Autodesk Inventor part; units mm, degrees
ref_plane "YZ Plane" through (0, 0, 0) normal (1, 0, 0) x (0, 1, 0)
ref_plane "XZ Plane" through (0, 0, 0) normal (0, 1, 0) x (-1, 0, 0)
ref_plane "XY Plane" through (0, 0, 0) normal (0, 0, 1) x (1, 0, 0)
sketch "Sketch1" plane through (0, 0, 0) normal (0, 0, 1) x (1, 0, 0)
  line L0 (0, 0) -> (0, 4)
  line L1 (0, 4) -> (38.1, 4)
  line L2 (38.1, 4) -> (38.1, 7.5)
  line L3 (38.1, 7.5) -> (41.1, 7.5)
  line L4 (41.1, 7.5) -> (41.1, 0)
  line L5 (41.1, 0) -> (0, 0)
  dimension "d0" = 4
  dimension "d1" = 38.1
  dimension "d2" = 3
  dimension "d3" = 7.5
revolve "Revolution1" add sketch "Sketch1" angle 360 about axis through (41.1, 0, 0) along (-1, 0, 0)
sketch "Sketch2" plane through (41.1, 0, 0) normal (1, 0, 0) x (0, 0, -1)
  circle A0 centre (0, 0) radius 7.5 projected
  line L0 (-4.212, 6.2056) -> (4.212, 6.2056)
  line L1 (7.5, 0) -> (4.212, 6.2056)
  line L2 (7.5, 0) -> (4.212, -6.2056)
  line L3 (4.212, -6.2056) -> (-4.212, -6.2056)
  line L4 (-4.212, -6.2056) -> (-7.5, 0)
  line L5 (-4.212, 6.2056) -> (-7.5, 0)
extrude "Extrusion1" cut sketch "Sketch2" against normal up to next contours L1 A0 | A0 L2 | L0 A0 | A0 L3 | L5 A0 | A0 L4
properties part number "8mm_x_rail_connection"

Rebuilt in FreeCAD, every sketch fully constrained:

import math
import FreeCAD as App
import Part
import Sketcher

doc = App.newDocument("Part")
body = doc.addObject("PartDesign::Body", "Body")

sketch1 = body.newObject("Sketcher::SketchObject", "Sketch")
sketch1.AttachmentSupport = (doc.getObject("XY_Plane"), [""])
sketch1.MapMode = "FlatFace"
sketch1.addGeometry(Part.LineSegment(App.Vector(0, 4, 0), App.Vector(0, 0, 0)), False)
sketch1.addGeometry(Part.LineSegment(App.Vector(0, 0, 0), App.Vector(41.1, 0, 0)), False)
sketch1.addGeometry(Part.LineSegment(App.Vector(41.1, 0, 0), App.Vector(41.1, 7.5, 0)), False)
sketch1.addGeometry(Part.LineSegment(App.Vector(41.1, 7.5, 0), App.Vector(38.1, 7.5, 0)), False)
sketch1.addGeometry(Part.LineSegment(App.Vector(38.1, 7.5, 0), App.Vector(38.1, 4, 0)), False)
sketch1.addGeometry(Part.LineSegment(App.Vector(38.1, 4, 0), App.Vector(0, 4, 0)), False)
sketch1.addConstraint(Sketcher.Constraint("Coincident", 0, 2, 1, 1))
sketch1.addConstraint(Sketcher.Constraint("Coincident", 1, 2, 2, 1))
sketch1.addConstraint(Sketcher.Constraint("Coincident", 2, 2, 3, 1))
sketch1.addConstraint(Sketcher.Constraint("Coincident", 3, 2, 4, 1))
sketch1.addConstraint(Sketcher.Constraint("Coincident", 4, 2, 5, 1))
sketch1.addConstraint(Sketcher.Constraint("Coincident", 5, 2, 0, 1))
sketch1.addConstraint(Sketcher.Constraint("Vertical", 0))
sketch1.addConstraint(Sketcher.Constraint("Horizontal", 1))
sketch1.addConstraint(Sketcher.Constraint("Vertical", 2))
sketch1.addConstraint(Sketcher.Constraint("Horizontal", 3))
sketch1.addConstraint(Sketcher.Constraint("Vertical", 4))
sketch1.addConstraint(Sketcher.Constraint("Horizontal", 5))
sketch1.addConstraint(Sketcher.Constraint("Coincident", 0, 2, -1, 1))
sketch1.addConstraint(Sketcher.Constraint("DistanceX", 3, 2, 3, 1, 3.0))
sketch1.addConstraint(Sketcher.Constraint("DistanceY", 0, 2, 0, 1, 4.0))
sketch1.addConstraint(Sketcher.Constraint("DistanceX", 5, 2, 5, 1, 38.1))
sketch1.addConstraint(Sketcher.Constraint("DistanceY", 2, 1, 2, 2, 7.5))
revolution = body.newObject("PartDesign::Revolution", "Revolution")
revolution.Profile = sketch1
revolution.ReferenceAxis = (sketch1, ["H_Axis"])
revolution.Angle = 360

sketch2 = body.newObject("Sketcher::SketchObject", "Sketch001")
sketch2.AttachmentSupport = (doc.getObject("YZ_Plane"), [""])
sketch2.MapMode = "FlatFace"
sketch2.AttachmentOffset = App.Placement(App.Vector(0, 0, 41.1), App.Rotation())
sketch2.addGeometry(Part.LineSegment(App.Vector(6, -4, 0), App.Vector(0, -8, 0)), False)
sketch2.addGeometry(Part.ArcOfCircle(Part.Circle(App.Vector(0, 0, 0), App.Vector(0, 0, 1), 8), math.radians(-90), math.radians(-34)), False)
sketch2.addGeometry(Part.ArcOfCircle(Part.Circle(App.Vector(0, 0, 0), App.Vector(0, 0, 1), 8), math.radians(-146), math.radians(-90)), False)
sketch2.addGeometry(Part.LineSegment(App.Vector(0, -8, 0), App.Vector(-6, -4, 0)), False)
sketch2.addGeometry(Part.LineSegment(App.Vector(6, 4, 0), App.Vector(6, -4, 0)), False)
sketch2.addGeometry(Part.ArcOfCircle(Part.Circle(App.Vector(0, 0, 0), App.Vector(0, 0, 1), 8), math.radians(-34), math.radians(34)), False)
sketch2.addGeometry(Part.ArcOfCircle(Part.Circle(App.Vector(0, 0, 0), App.Vector(0, 0, 1), 8), math.radians(146), math.radians(214)), False)
sketch2.addGeometry(Part.LineSegment(App.Vector(-6, 4, 0), App.Vector(-6, -4, 0)), False)
sketch2.addGeometry(Part.LineSegment(App.Vector(0, 8, 0), App.Vector(6, 4, 0)), False)
sketch2.addGeometry(Part.ArcOfCircle(Part.Circle(App.Vector(0, 0, 0), App.Vector(0, 0, 1), 8), math.radians(34), math.radians(90)), False)
sketch2.addGeometry(Part.ArcOfCircle(Part.Circle(App.Vector(0, 0, 0), App.Vector(0, 0, 1), 8), math.radians(90), math.radians(146)), False)
sketch2.addGeometry(Part.LineSegment(App.Vector(0, 8, 0), App.Vector(-6, 4, 0)), False)
sketch2.addConstraint(Sketcher.Constraint("Coincident", 0, 1, 1, 2))
sketch2.addConstraint(Sketcher.Constraint("Coincident", 1, 1, 0, 2))
sketch2.addConstraint(Sketcher.Constraint("Coincident", 2, 1, 3, 2))
sketch2.addConstraint(Sketcher.Constraint("Coincident", 3, 1, 2, 2))
sketch2.addConstraint(Sketcher.Constraint("Coincident", 4, 1, 5, 2))
sketch2.addConstraint(Sketcher.Constraint("Coincident", 5, 1, 4, 2))
sketch2.addConstraint(Sketcher.Constraint("Coincident", 6, 1, 7, 1))
sketch2.addConstraint(Sketcher.Constraint("Coincident", 7, 2, 6, 2))
sketch2.addConstraint(Sketcher.Constraint("Coincident", 8, 1, 9, 2))
sketch2.addConstraint(Sketcher.Constraint("Coincident", 9, 1, 8, 2))
sketch2.addConstraint(Sketcher.Constraint("Coincident", 10, 1, 11, 1))
sketch2.addConstraint(Sketcher.Constraint("Coincident", 11, 2, 10, 2))
sketch2.addConstraint(Sketcher.Constraint("Vertical", 4))
sketch2.addConstraint(Sketcher.Constraint("Vertical", 7))
sketch2.addConstraint(Sketcher.Constraint("Coincident", 1, 3, -1, 1))
sketch2.addConstraint(Sketcher.Constraint("Coincident", 2, 3, -1, 1))
sketch2.addConstraint(Sketcher.Constraint("Coincident", 5, 3, -1, 1))
sketch2.addConstraint(Sketcher.Constraint("Coincident", 6, 3, -1, 1))
sketch2.addConstraint(Sketcher.Constraint("Coincident", 9, 3, -1, 1))
sketch2.addConstraint(Sketcher.Constraint("Coincident", 10, 3, -1, 1))
sketch2.addConstraint(Sketcher.Constraint("Coincident", 3, 1, 1, 1))
sketch2.addConstraint(Sketcher.Constraint("Coincident", 5, 1, 0, 1))
sketch2.addConstraint(Sketcher.Constraint("Coincident", 7, 2, 2, 1))
sketch2.addConstraint(Sketcher.Constraint("Coincident", 9, 1, 4, 1))
sketch2.addConstraint(Sketcher.Constraint("Coincident", 10, 1, 8, 1))
sketch2.addConstraint(Sketcher.Constraint("PointOnObject", 1, 1, -2))
sketch2.addConstraint(Sketcher.Constraint("PointOnObject", 8, 1, -2))
sketch2.addConstraint(Sketcher.Constraint("Parallel", 3, 8))
sketch2.addConstraint(Sketcher.Constraint("Parallel", 0, 11))
sketch2.addConstraint(Sketcher.Constraint("Radius", 1, 7.5))
sketch2.addConstraint(Sketcher.Constraint("DistanceY", 4, 2, 4, 1, 8.424))
pocket1 = body.newObject("PartDesign::Pocket", "Pocket")
pocket1.Profile = sketch2
pocket1.Type = "UpToFirst"

doc.recompute()
